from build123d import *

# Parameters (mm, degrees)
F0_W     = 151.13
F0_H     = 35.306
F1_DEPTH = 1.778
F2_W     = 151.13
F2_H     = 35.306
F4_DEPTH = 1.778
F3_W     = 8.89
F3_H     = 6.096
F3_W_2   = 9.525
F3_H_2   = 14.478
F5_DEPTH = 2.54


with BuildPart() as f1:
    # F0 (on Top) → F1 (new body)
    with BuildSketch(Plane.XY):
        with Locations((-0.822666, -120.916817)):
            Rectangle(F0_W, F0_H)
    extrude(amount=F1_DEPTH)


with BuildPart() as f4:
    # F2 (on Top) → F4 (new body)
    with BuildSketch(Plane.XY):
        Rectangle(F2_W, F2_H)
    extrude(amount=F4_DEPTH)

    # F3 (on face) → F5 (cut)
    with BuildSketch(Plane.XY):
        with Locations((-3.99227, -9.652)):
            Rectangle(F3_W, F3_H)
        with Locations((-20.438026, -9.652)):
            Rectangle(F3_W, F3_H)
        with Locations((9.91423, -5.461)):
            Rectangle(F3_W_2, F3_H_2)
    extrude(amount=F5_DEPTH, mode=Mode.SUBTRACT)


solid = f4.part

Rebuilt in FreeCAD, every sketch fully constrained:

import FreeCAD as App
import Part
import Sketcher

V = App.Vector
Q = App.Units.Quantity


def add_polygon(sketch, points):
    """Adds a closed chain of lines whose ends are joined by coincident constraints."""
    first, n = sketch.GeometryCount, len(points)
    for a, b in zip(points, points[1:] + points[:1]):
        sketch.addGeometry(Part.LineSegment(App.Vector(*a, 0), App.Vector(*b, 0)), False)
    for i in range(n):
        sketch.addConstraint(Sketcher.Constraint("Coincident", first + i, 2, first + (i + 1) % n, 1))

doc = App.newDocument("Part")
body = doc.addObject("PartDesign::Body", "Body")

# Sketch on XY plane
sketch1 = doc.addObject("Sketcher::SketchObject", "Sketch")
body.addObject(sketch1)
sketch1.AttachmentSupport = (doc.XY_Plane, [""])
sketch1.MapMode = "FlatFace"
add_polygon(sketch1, [(-76.387666, -103.263817), (-76.387666, -138.569817), (74.742334, -138.569817), (74.742334, -103.263817)])  # lines 0-3
sketch1.addConstraint([
    Sketcher.Constraint("Vertical", 0),
    Sketcher.Constraint("Horizontal", 1),
    Sketcher.Constraint("Vertical", 2),
    Sketcher.Constraint("Horizontal", 3),
    Sketcher.Constraint("DistanceX", 1, 1, 1, 2, Q("5.95 in")),
    Sketcher.Constraint("DistanceY", 0, 2, 0, 1, Q("1.39 in")),
    Sketcher.Constraint("DistanceX", 0, 2, -1, 1, 76.387666),
    Sketcher.Constraint("DistanceY", 0, 2, -1, 1, 138.569817),
])
pad1 = doc.addObject("PartDesign::Pad", "Pad")
body.addObject(pad1)
pad1.Profile = sketch1
pad1.Length = Q("0.07 in")
body2 = doc.addObject("PartDesign::Body", "Body001")

# Sketch on XY plane
sketch2 = doc.addObject("Sketcher::SketchObject", "Sketch001")
body2.addObject(sketch2)
sketch2.AttachmentSupport = (doc.getObject("XY_Plane001"), [""])
sketch2.MapMode = "FlatFace"
add_polygon(sketch2, [(-75.565, 17.653), (-75.565, -17.653), (75.565, -17.653), (75.565, 17.653)])  # lines 0-3
sketch2.addConstraint([
    Sketcher.Constraint("Vertical", 0),
    Sketcher.Constraint("Horizontal", 1),
    Sketcher.Constraint("Vertical", 2),
    Sketcher.Constraint("Horizontal", 3),
    Sketcher.Constraint("Symmetric", 0, 2, 2, 2, -1, 1),
    Sketcher.Constraint("DistanceX", 1, 1, 1, 2, Q("5.95 in")),
    Sketcher.Constraint("DistanceY", 0, 2, 0, 1, Q("1.39 in")),
])
pad2 = doc.addObject("PartDesign::Pad", "Pad001")
body2.addObject(pad2)
pad2.Profile = sketch2
pad2.Length = Q("0.07 in")

# Sketch on XY plane
sketch3 = doc.addObject("Sketcher::SketchObject", "Sketch002")
body2.addObject(sketch3)
sketch3.AttachmentSupport = (doc.getObject("XY_Plane001"), [""])
sketch3.MapMode = "FlatFace"
add_polygon(sketch3, [(-8.43727, -6.604), (-8.43727, -12.7), (0.45273, -12.7), (0.45273, -6.604)])  # lines 0-3
add_polygon(sketch3, [(-24.883026, -6.604), (-24.883026, -12.7), (-15.993026, -12.7), (-15.993026, -6.604)])  # lines 4-7
add_polygon(sketch3, [(5.15173, 1.778), (5.15173, -12.7), (14.67673, -12.7), (14.67673, 1.778)])  # lines 8-11
sketch3.addConstraint([
    Sketcher.Constraint("Vertical", 0),
    Sketcher.Constraint("Horizontal", 1),
    Sketcher.Constraint("Vertical", 2),
    Sketcher.Constraint("Horizontal", 3),
    Sketcher.Constraint("Vertical", 4),
    Sketcher.Constraint("Horizontal", 5),
    Sketcher.Constraint("Vertical", 6),
    Sketcher.Constraint("Horizontal", 7),
    Sketcher.Constraint("Vertical", 8),
    Sketcher.Constraint("Horizontal", 9),
    Sketcher.Constraint("Vertical", 10),
    Sketcher.Constraint("Horizontal", 11),
    Sketcher.Constraint("Horizontal", 1, 2, 4, 2),
    Sketcher.Constraint("Horizontal", 3, 2, 6, 2),
    Sketcher.Constraint("Horizontal", 5, 2, 8, 2),
    Sketcher.Constraint("Equal", 3, 5),
    Sketcher.Constraint("DistanceX", 1, 1, 1, 2, Q("0.35 in")),
    Sketcher.Constraint("DistanceY", 0, 2, 0, 1, Q("0.24 in")),
    Sketcher.Constraint("DistanceY", 8, 2, 8, 1, Q("0.57 in")),
    Sketcher.Constraint("DistanceY", 0, 2, -1, 1, Q("0.5 in")),
    Sketcher.Constraint("DistanceX", 9, 1, 9, 2, Q("0.375 in")),
    Sketcher.Constraint("DistanceX", 1, 2, 9, 2, Q("0.56 in")),
    Sketcher.Constraint("DistanceX", 0, 2, -1, 1, 8.43727),
    Sketcher.Constraint("DistanceX", 4, 2, -1, 1, 24.883026),
])
pocket1 = doc.addObject("PartDesign::Pocket", "Pocket")
body2.addObject(pocket1)
pocket1.Profile = sketch3
pocket1.Length = Q("0.1 in")
pocket1.Reversed = True
body.Visibility = False

doc.recompute()
